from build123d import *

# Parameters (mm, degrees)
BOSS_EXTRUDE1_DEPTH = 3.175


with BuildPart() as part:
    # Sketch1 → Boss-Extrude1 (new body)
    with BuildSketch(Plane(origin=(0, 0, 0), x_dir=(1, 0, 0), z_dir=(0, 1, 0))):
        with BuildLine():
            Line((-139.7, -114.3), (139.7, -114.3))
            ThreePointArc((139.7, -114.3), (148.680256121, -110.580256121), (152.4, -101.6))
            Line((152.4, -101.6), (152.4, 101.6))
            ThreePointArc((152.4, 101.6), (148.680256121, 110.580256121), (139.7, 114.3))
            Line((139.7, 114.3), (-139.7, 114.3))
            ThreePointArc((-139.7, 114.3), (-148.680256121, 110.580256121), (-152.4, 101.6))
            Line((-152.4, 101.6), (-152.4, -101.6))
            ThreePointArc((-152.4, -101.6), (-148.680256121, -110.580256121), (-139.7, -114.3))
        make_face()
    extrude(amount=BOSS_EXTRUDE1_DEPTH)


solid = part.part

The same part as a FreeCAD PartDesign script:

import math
import FreeCAD as App
import Part
import Sketcher
from FreeCAD import Vector
Q = App.Units.Quantity

doc = App.newDocument("Part")
params = doc.addObject("Spreadsheet::Sheet", "Params")
for row, (alias, value) in enumerate([
    ("sketch1_radius", "0.5 in"),
    ("sketch1_width", "11 in"),
    ("sketch1_height", "8 in"),
    ("pad1_length", "0.125 in"),
], start=1):
    params.set(f"A{row}", alias)
    params.set(f"B{row}", "=" + value)
    params.setAlias(f"B{row}", alias)

body = doc.addObject("PartDesign::Body", "Body")

sketch1 = body.newObject("Sketcher::SketchObject", "Sketch")
sketch1.AttachmentSupport = (doc.getObject("XZ_Plane"), [""])
sketch1.MapMode = "FlatFace"
sketch1.addGeometry([
    Part.LineSegment(Vector(-139.7, 114.3, 0), Vector(139.7, 114.3, 0)),
    Part.ArcOfCircle(Part.Circle(Vector(139.7, 101.6, 0), Vector(0, 0, 1), 12.7), math.radians(0), math.radians(90)),
    Part.LineSegment(Vector(152.4, 101.6, 0), Vector(152.4, -101.6, 0)),
    Part.ArcOfCircle(Part.Circle(Vector(139.7, -101.6, 0), Vector(0, 0, 1), 12.7), math.radians(-90), math.radians(0)),
    Part.LineSegment(Vector(139.7, -114.3, 0), Vector(-139.7, -114.3, 0)),
    Part.ArcOfCircle(Part.Circle(Vector(-139.7, -101.6, 0), Vector(0, 0, 1), 12.7), math.radians(180), math.radians(270)),
    Part.LineSegment(Vector(-152.4, -101.6, 0), Vector(-152.4, 101.6, 0)),
    Part.ArcOfCircle(Part.Circle(Vector(-139.7, 101.6, 0), Vector(0, 0, 1), 12.7), math.radians(90), math.radians(180)),
], False)
sketch1.addConstraint([
    Sketcher.Constraint("Tangent", 0, 2, 1, 2),
    Sketcher.Constraint("Tangent", 1, 1, 2, 1),
    Sketcher.Constraint("Tangent", 2, 2, 3, 2),
    Sketcher.Constraint("Tangent", 3, 1, 4, 1),
    Sketcher.Constraint("Tangent", 4, 2, 5, 2),
    Sketcher.Constraint("Tangent", 5, 1, 6, 1),
    Sketcher.Constraint("Tangent", 6, 2, 7, 2),
    Sketcher.Constraint("Tangent", 7, 1, 0, 1),
    Sketcher.Constraint("Horizontal", 0),
    Sketcher.Constraint("Vertical", 2),
    Sketcher.Constraint("Horizontal", 4),
    Sketcher.Constraint("Vertical", 6),
    Sketcher.Constraint("Equal", 1, 3),
    Sketcher.Constraint("Equal", 3, 5),
    Sketcher.Constraint("Equal", 5, 7),
    Sketcher.Constraint("Symmetric", 1, 3, 5, 3, -1, 1),
    Sketcher.Constraint("Radius", 1, Q("0.5 in")),
    Sketcher.Constraint("DistanceX", 0, 1, 0, 2, Q("11 in")),
    Sketcher.Constraint("DistanceY", 2, 2, 2, 1, Q("8 in")),
])
sketch1.setExpression("Constraints[16]", "Params.sketch1_radius")
sketch1.setExpression("Constraints[17]", "Params.sketch1_width")
sketch1.setExpression("Constraints[18]", "Params.sketch1_height")
pad1 = body.newObject("PartDesign::Pad", "Pad")
pad1.Profile = sketch1
pad1.setExpression("Length", "Params.pad1_length")
pad1.Reversed = True

doc.recompute()
